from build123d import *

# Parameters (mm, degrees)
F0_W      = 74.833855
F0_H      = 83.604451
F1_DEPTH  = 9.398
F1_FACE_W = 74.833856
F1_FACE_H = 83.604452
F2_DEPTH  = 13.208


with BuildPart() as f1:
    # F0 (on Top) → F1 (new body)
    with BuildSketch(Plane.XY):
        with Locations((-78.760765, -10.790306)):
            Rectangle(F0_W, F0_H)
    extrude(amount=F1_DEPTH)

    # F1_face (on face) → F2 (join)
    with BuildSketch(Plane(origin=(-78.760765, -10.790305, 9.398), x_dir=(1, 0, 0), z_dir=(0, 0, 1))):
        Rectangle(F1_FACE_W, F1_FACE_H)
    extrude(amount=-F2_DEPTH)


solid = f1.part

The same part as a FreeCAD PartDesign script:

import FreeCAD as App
import Part
import Sketcher

V = App.Vector
Q = App.Units.Quantity


def add_polygon(sketch, points):
    """Adds a closed chain of lines whose ends are joined by coincident constraints."""
    first, n = sketch.GeometryCount, len(points)
    for a, b in zip(points, points[1:] + points[:1]):
        sketch.addGeometry(Part.LineSegment(App.Vector(*a, 0), App.Vector(*b, 0)), False)
    for i in range(n):
        sketch.addConstraint(Sketcher.Constraint("Coincident", first + i, 2, first + (i + 1) % n, 1))

doc = App.newDocument("Part")
body = doc.addObject("PartDesign::Body", "Body")

# Sketch on XY plane
sketch1 = body.newObject("Sketcher::SketchObject", "Sketch")
sketch1.AttachmentSupport = (doc.getObject("XY_Plane"), [""])
sketch1.MapMode = "FlatFace"
add_polygon(sketch1, [(-116, 31), (-116, -53), (-41, -53), (-41, 31)])  # lines 0-3
sketch1.addConstraint([
    Sketcher.Constraint("Vertical", 0),
    Sketcher.Constraint("Horizontal", 1),
    Sketcher.Constraint("Vertical", 2),
    Sketcher.Constraint("Horizontal", 3),
    Sketcher.Constraint("DistanceY", 0, 2, 0, 1, 83.604451),
    Sketcher.Constraint("DistanceX", 1, 1, 1, 2, 74.833855),
    Sketcher.Constraint("DistanceY", 0, 2, -1, 1, 52.592531),
    Sketcher.Constraint("DistanceX", 0, 2, -1, 1, 116.177693),
])
pad1 = body.newObject("PartDesign::Pad", "Pad")
pad1.Profile = sketch1
pad1.Length = Q("0.37 in")

# Sketch on XY plane
sketch2 = body.newObject("Sketcher::SketchObject", "Sketch001")
sketch2.AttachmentSupport = (doc.getObject("XY_Plane"), [""])
sketch2.MapMode = "FlatFace"
sketch2.AttachmentOffset = App.Placement(V(0, 0, 0.37 * 25.4), App.Rotation())
add_polygon(sketch2, [(-116, 31), (-116, -53), (-41, -53), (-41, 31)])  # lines 0-3
sketch2.addConstraint([
    Sketcher.Constraint("Vertical", 0),
    Sketcher.Constraint("Horizontal", 1),
    Sketcher.Constraint("Vertical", 2),
    Sketcher.Constraint("Horizontal", 3),
    Sketcher.Constraint("DistanceX", 1, 1, 1, 2, 74.833856),
    Sketcher.Constraint("DistanceY", 0, 2, 0, 1, 83.604452),
    Sketcher.Constraint("DistanceY", 0, 2, -1, 1, 52.592531),
    Sketcher.Constraint("DistanceX", 0, 2, -1, 1, 116.177693),
])
pad2 = body.newObject("PartDesign::Pad", "Pad001")
pad2.Profile = sketch2
pad2.Length = Q("0.52 in")
pad2.Reversed = True

doc.recompute()
